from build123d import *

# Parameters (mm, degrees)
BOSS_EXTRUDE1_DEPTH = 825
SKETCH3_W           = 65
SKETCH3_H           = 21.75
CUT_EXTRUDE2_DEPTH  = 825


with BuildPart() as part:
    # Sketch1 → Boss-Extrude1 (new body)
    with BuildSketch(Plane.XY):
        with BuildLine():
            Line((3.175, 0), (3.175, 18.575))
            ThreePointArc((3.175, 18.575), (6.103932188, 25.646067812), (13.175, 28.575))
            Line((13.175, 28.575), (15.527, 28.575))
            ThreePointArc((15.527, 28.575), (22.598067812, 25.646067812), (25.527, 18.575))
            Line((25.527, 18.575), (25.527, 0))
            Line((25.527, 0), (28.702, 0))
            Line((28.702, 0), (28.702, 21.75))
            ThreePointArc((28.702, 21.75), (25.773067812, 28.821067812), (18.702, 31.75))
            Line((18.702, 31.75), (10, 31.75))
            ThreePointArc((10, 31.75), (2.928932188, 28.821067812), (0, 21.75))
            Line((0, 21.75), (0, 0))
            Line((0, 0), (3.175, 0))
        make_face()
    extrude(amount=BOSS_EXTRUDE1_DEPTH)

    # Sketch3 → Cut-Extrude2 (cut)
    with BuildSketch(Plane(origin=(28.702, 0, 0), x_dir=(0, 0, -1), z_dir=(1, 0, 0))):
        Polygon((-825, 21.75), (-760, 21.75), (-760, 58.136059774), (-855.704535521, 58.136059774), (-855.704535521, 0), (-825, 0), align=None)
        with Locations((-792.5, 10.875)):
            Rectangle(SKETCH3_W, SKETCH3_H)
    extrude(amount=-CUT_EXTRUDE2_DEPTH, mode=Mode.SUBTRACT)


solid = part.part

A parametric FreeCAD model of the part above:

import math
import FreeCAD as App
import Part
import Sketcher

V = App.Vector


def add_polygon(sketch, points):
    """Adds a closed chain of lines whose ends are joined by coincident constraints."""
    first, n = sketch.GeometryCount, len(points)
    for a, b in zip(points, points[1:] + points[:1]):
        sketch.addGeometry(Part.LineSegment(App.Vector(*a, 0), App.Vector(*b, 0)), False)
    for i in range(n):
        sketch.addConstraint(Sketcher.Constraint("Coincident", first + i, 2, first + (i + 1) % n, 1))

doc = App.newDocument("Part")
body = doc.addObject("PartDesign::Body", "Body")

sketch1 = body.newObject("Sketcher::SketchObject", "Sketch")
sketch1.AttachmentSupport = (doc.getObject("XY_Plane"), [""])
sketch1.MapMode = "FlatFace"
sketch1.addGeometry(Part.LineSegment(V(3.175, 0, 0), V(3.175, 18.575, 0)), False)
sketch1.addGeometry(Part.ArcOfCircle(Part.Circle(V(13.175, 18.575, 0), V(0, 0, 1), 10), math.radians(90), math.radians(180)), False)
sketch1.addGeometry(Part.LineSegment(V(13.175, 28.575, 0), V(15.527, 28.575, 0)), False)
sketch1.addGeometry(Part.ArcOfCircle(Part.Circle(V(15.527, 18.575, 0), V(0, 0, 1), 10), math.radians(0), math.radians(90)), False)
sketch1.addGeometry(Part.LineSegment(V(25.527, 18.575, 0), V(25.527, 0, 0)), False)
sketch1.addGeometry(Part.LineSegment(V(25.527, 0, 0), V(28.702, 0, 0)), False)
sketch1.addGeometry(Part.LineSegment(V(28.702, 0, 0), V(28.702, 21.75, 0)), False)
sketch1.addGeometry(Part.ArcOfCircle(Part.Circle(V(18.702, 21.75, 0), V(0, 0, 1), 10), math.radians(0), math.radians(90)), False)
sketch1.addGeometry(Part.LineSegment(V(18.702, 31.75, 0), V(10, 31.75, 0)), False)
sketch1.addGeometry(Part.ArcOfCircle(Part.Circle(V(10, 21.75, 0), V(0, 0, 1), 10), math.radians(90), math.radians(180)), False)
sketch1.addGeometry(Part.LineSegment(V(0, 21.75, 0), V(0, 0, 0)), False)
sketch1.addGeometry(Part.LineSegment(V(0, 0, 0), V(3.175, 0, 0)), False)
sketch1.addConstraint(Sketcher.Constraint("Tangent", 0, 2, 1, 2))
sketch1.addConstraint(Sketcher.Constraint("Tangent", 1, 1, 2, 1))
sketch1.addConstraint(Sketcher.Constraint("Tangent", 2, 2, 3, 2))
sketch1.addConstraint(Sketcher.Constraint("Tangent", 3, 1, 4, 1))
sketch1.addConstraint(Sketcher.Constraint("Coincident", 4, 2, 5, 1))
sketch1.addConstraint(Sketcher.Constraint("Coincident", 5, 2, 6, 1))
sketch1.addConstraint(Sketcher.Constraint("Tangent", 6, 2, 7, 1))
sketch1.addConstraint(Sketcher.Constraint("Tangent", 7, 2, 8, 1))
sketch1.addConstraint(Sketcher.Constraint("Tangent", 8, 2, 9, 1))
sketch1.addConstraint(Sketcher.Constraint("Tangent", 9, 2, 10, 1))
sketch1.addConstraint(Sketcher.Constraint("Coincident", 10, 2, 11, 1))
sketch1.addConstraint(Sketcher.Constraint("Coincident", 11, 2, 0, 1))
sketch1.addConstraint(Sketcher.Constraint("Vertical", 0))
sketch1.addConstraint(Sketcher.Constraint("Horizontal", 2))
sketch1.addConstraint(Sketcher.Constraint("Vertical", 4))
sketch1.addConstraint(Sketcher.Constraint("Horizontal", 5))
sketch1.addConstraint(Sketcher.Constraint("Vertical", 6))
sketch1.addConstraint(Sketcher.Constraint("Horizontal", 8))
sketch1.addConstraint(Sketcher.Constraint("Vertical", 10))
sketch1.addConstraint(Sketcher.Constraint("Horizontal", 11))
sketch1.addConstraint(Sketcher.Constraint("Coincident", 10, 2, -1, 1))
sketch1.addConstraint(Sketcher.Constraint("Equal", 1, 3))
sketch1.addConstraint(Sketcher.Constraint("Equal", 3, 7))
sketch1.addConstraint(Sketcher.Constraint("Equal", 7, 9))
sketch1.addConstraint(Sketcher.Constraint("PointOnObject", 4, 2, -1))
sketch1.addConstraint(Sketcher.Constraint("Equal", 5, 11))
sketch1.addConstraint(Sketcher.Constraint("Radius", 1, 10.0))
sketch1.addConstraint(Sketcher.Constraint("DistanceY", 6, 1, 6, 2, 21.75))
sketch1.addConstraint(Sketcher.Constraint("DistanceX", 2, 1, 2, 2, 2.352))
sketch1.addConstraint(Sketcher.Constraint("DistanceX", 5, 1, 5, 2, 3.175))
sketch1.addConstraint(Sketcher.Constraint("DistanceY", 0, 1, 0, 2, 18.575))
pad1 = body.newObject("PartDesign::Pad", "Pad")
pad1.Profile = sketch1
pad1.Length = 825

sketch2 = body.newObject("Sketcher::SketchObject", "Sketch001")
sketch2.AttachmentSupport = (doc.getObject("YZ_Plane"), [""])
sketch2.MapMode = "FlatFace"
sketch2.AttachmentOffset = App.Placement(V(0, 0, 28.702), App.Rotation())
add_polygon(sketch2, [(58.13606, 760), (58.13606, 855.704536), (0, 855.704536), (0, 760)])
sketch2.addConstraint(Sketcher.Constraint("Vertical", 0))
sketch2.addConstraint(Sketcher.Constraint("Horizontal", 1))
sketch2.addConstraint(Sketcher.Constraint("Vertical", 2))
sketch2.addConstraint(Sketcher.Constraint("Horizontal", 3))
sketch2.addConstraint(Sketcher.Constraint("PointOnObject", 1, 2, -2))
sketch2.addConstraint(Sketcher.Constraint("DistanceY", -1, 1, 2, 2, 760.0))
sketch2.addConstraint(Sketcher.Constraint("DistanceX", 1, 2, 1, 1, 58.13606))
sketch2.addConstraint(Sketcher.Constraint("DistanceY", 0, 1, 0, 2, 95.704536))
pocket1 = body.newObject("PartDesign::Pocket", "Pocket")
pocket1.Profile = sketch2
pocket1.Length = 825

doc.recompute()
